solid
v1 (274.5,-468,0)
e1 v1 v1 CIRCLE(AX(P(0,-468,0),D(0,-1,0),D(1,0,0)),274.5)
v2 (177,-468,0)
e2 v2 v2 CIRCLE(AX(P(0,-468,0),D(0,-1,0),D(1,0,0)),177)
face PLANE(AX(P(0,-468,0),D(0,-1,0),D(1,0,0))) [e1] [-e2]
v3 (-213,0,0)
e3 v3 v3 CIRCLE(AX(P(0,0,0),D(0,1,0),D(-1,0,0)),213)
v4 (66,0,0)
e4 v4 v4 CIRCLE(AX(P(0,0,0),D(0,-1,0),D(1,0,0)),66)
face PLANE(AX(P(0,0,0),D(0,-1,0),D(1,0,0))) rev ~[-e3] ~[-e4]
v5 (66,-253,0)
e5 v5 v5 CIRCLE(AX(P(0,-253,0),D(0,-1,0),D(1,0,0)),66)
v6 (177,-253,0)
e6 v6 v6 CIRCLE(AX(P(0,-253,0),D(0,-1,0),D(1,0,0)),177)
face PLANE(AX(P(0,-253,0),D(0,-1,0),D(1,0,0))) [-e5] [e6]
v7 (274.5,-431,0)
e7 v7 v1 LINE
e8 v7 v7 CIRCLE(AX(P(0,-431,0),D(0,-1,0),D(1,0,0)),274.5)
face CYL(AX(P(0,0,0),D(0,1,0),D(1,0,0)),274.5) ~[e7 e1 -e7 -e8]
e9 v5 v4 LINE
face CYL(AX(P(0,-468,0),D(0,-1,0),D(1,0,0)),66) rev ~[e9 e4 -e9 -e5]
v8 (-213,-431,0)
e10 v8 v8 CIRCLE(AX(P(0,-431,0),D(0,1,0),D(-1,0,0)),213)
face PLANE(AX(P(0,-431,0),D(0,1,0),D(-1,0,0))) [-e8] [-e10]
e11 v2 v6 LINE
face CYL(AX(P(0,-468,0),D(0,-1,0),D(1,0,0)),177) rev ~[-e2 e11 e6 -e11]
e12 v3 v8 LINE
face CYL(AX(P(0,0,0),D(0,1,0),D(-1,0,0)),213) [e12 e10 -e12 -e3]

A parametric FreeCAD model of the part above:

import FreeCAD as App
import Part
import Sketcher
Q = App.Units.Quantity

doc = App.newDocument("Part")
body = doc.addObject("PartDesign::Body", "Body")

# Sketch on XZ plane
sketch1 = doc.addObject("Sketcher::SketchObject", "Sketch")
body.addObject(sketch1)
sketch1.AttachmentSupport = (doc.XZ_Plane, [""])
sketch1.MapMode = "FlatFace"
sketch1.addGeometry(Part.Circle(App.Vector(0, 0, 0), App.Vector(0, 0, 1), 274), False)
sketch1.addConstraint([
    Sketcher.Constraint("Coincident", 0, 3, -1, 1),
    Sketcher.Constraint("Diameter", 0, Q("549 mm")),
])
pad1 = doc.addObject("PartDesign::Pad", "Pad")
body.addObject(pad1)
pad1.Profile = sketch1
pad1.Length = 468

# Sketch on XZ plane
sketch2 = doc.addObject("Sketcher::SketchObject", "Sketch001")
body.addObject(sketch2)
sketch2.AttachmentSupport = (doc.XZ_Plane, [""])
sketch2.MapMode = "FlatFace"
sketch2.AttachmentOffset = App.Placement(App.Vector(0, 0, 468), App.Rotation())
sketch2.addGeometry(Part.Circle(App.Vector(0, 0, 0), App.Vector(0, 0, 1), 66), False)
sketch2.addConstraint([
    Sketcher.Constraint("Coincident", 0, 3, -1, 1),
    Sketcher.Constraint("Diameter", 0, Q("132 mm")),
])
pocket1 = doc.addObject("PartDesign::Pocket", "Pocket")
body.addObject(pocket1)
pocket1.Profile = sketch2
pocket1.Length = 468

# Sketch on XZ plane
sketch3 = doc.addObject("Sketcher::SketchObject", "Sketch002")
body.addObject(sketch3)
sketch3.AttachmentSupport = (doc.XZ_Plane, [""])
sketch3.MapMode = "FlatFace"
sketch3.AttachmentOffset = App.Placement(App.Vector(0, 0, 468), App.Rotation())
sketch3.addGeometry([
    Part.Circle(App.Vector(0, 0, 0), App.Vector(0, 0, 1), 177),
    Part.Circle(App.Vector(0, 0, 0), App.Vector(0, 0, 1), 66),
], False)
sketch3.addConstraint([
    Sketcher.Constraint("Coincident", 0, 3, -1, 1),
    Sketcher.Constraint("Coincident", 1, 3, -1, 1),
    Sketcher.Constraint("Diameter", 0, Q("354 mm")),
    Sketcher.Constraint("Diameter", 1, Q("132 mm")),
])
pocket2 = doc.addObject("PartDesign::Pocket", "Pocket001")
body.addObject(pocket2)
pocket2.Profile = sketch3
pocket2.Length = 215

# Sketch on XZ plane
sketch4 = doc.addObject("Sketcher::SketchObject", "Sketch003")
body.addObject(sketch4)
sketch4.AttachmentSupport = (doc.XZ_Plane, [""])
sketch4.MapMode = "FlatFace"
sketch4.addGeometry([
    Part.Circle(App.Vector(0, 0, 0), App.Vector(0, 0, 1), 274),
    Part.Circle(App.Vector(0, 0, 0), App.Vector(0, 0, 1), 213),
], False)
sketch4.addConstraint([
    Sketcher.Constraint("Coincident", 0, 3, -1, 1),
    Sketcher.Constraint("Coincident", 1, 3, -1, 1),
    Sketcher.Constraint("Diameter", 0, Q("549 mm")),
    Sketcher.Constraint("Diameter", 1, Q("426 mm")),
])
pocket3 = doc.addObject("PartDesign::Pocket", "Pocket002")
body.addObject(pocket3)
pocket3.Profile = sketch4
pocket3.Length = 431
pocket3.Reversed = True

doc.recompute()
